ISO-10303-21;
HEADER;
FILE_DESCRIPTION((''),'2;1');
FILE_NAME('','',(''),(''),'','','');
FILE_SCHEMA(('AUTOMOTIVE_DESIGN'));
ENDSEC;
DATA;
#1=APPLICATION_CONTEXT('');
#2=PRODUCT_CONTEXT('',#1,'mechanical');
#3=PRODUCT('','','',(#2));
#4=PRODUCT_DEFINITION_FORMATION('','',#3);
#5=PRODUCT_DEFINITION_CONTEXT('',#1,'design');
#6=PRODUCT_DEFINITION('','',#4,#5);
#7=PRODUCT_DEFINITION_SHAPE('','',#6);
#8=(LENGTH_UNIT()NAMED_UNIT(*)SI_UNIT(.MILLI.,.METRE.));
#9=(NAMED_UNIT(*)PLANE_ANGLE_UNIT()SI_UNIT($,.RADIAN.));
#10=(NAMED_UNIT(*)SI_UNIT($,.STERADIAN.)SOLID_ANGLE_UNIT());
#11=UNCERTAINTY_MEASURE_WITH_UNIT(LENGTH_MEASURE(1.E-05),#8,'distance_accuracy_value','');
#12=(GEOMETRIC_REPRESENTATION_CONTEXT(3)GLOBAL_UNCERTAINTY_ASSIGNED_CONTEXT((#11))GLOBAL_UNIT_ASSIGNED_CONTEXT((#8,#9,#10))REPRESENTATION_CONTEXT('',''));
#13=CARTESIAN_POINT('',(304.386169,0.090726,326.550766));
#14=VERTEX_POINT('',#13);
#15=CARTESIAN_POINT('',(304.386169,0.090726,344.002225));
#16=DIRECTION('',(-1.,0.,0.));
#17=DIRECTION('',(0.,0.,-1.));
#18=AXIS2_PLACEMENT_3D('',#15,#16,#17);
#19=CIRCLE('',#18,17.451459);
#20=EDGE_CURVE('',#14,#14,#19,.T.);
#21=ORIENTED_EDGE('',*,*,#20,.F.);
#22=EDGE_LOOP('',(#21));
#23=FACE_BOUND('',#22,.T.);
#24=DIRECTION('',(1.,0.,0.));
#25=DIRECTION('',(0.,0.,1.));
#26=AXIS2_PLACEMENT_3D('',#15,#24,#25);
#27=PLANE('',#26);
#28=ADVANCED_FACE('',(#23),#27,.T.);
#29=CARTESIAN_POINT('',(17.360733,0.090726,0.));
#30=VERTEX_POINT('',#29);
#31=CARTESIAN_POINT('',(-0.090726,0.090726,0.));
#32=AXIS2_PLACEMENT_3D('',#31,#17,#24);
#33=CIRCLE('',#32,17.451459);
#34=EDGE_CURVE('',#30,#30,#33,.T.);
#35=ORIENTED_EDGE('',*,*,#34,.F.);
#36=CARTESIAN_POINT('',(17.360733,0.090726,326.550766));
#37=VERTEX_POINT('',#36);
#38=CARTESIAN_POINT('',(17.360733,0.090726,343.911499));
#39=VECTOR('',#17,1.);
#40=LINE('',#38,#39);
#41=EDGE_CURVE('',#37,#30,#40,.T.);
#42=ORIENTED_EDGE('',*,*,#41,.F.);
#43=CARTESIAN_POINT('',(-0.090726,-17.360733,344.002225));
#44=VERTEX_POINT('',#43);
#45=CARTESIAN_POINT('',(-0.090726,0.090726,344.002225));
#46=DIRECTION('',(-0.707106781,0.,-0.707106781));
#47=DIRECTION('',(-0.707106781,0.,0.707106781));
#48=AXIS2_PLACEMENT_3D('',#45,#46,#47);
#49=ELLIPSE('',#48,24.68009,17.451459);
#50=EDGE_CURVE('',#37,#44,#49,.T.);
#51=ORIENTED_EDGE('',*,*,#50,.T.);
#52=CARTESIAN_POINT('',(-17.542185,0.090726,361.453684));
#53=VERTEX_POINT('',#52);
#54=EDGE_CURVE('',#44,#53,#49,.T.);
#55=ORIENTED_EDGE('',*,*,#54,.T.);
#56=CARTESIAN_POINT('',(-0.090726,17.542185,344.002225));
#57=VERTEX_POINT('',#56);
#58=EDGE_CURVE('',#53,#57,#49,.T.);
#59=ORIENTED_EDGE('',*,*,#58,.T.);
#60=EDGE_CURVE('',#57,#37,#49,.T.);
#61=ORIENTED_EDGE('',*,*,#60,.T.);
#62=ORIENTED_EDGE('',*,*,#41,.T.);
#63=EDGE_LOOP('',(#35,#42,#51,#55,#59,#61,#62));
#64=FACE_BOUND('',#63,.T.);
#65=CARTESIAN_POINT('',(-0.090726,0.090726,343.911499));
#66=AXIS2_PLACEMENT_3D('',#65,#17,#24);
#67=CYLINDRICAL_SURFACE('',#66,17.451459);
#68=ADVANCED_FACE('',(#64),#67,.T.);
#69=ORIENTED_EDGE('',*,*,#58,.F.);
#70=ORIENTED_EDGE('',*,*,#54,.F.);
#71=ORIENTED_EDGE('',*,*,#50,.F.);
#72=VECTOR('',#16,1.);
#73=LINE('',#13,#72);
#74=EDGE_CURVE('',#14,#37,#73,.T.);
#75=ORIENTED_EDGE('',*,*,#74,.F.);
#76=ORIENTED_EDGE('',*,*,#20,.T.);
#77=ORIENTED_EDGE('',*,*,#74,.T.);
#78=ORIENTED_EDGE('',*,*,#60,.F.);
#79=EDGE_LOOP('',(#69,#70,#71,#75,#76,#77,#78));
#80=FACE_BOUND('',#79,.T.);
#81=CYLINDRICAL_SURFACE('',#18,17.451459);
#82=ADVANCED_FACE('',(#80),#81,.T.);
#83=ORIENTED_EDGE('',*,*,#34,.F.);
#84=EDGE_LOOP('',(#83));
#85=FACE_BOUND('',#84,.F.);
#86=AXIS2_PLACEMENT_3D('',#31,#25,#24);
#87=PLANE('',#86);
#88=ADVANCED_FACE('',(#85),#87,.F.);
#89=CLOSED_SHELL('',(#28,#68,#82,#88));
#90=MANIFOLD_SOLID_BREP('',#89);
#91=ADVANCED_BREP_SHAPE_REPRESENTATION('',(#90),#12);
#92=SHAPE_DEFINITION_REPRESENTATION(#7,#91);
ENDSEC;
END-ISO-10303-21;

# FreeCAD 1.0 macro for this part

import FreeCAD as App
import Part
import Sketcher
from FreeCAD import Vector

doc = App.newDocument("Part")
body = doc.addObject("PartDesign::Body", "Body")

sketch1 = body.newObject("Sketcher::SketchObject", "Sketch")
sketch1.AttachmentSupport = (doc.getObject("XY_Plane"), [""])
sketch1.MapMode = "FlatFace"
sketch1.addGeometry(Part.Circle(Vector(0, 0, 0), Vector(0, 0, 1), 17), False)
sketch1.addConstraint(Sketcher.Constraint("Diameter", 0, 34.902918))
sketch1.addConstraint(Sketcher.Constraint("DistanceX", 0, 3, -1, 1, 0.090726))
sketch1.addConstraint(Sketcher.Constraint("DistanceY", -1, 1, 0, 3, 0.090726))

sketch2 = body.newObject("Sketcher::SketchObject", "Sketch001")
sketch2.AttachmentSupport = (doc.getObject("XZ_Plane"), [""])
sketch2.MapMode = "FlatFace"
sketch2.addGeometry(Part.LineSegment(Vector(304, 344, 0), Vector(0, 344, 0)), False)
sketch2.addGeometry(Part.LineSegment(Vector(0, 344, 0), Vector(0, 0, 0)), False)
sketch2.addConstraint(Sketcher.Constraint("Coincident", 0, 2, 1, 1))
sketch2.addConstraint(Sketcher.Constraint("Horizontal", 0))
sketch2.addConstraint(Sketcher.Constraint("Vertical", 1))
sketch2.addConstraint(Sketcher.Constraint("Coincident", 1, 2, -1, 1))
sketch2.addConstraint(Sketcher.Constraint("DistanceY", 1, 2, 1, 1, 343.911499))
sketch2.addConstraint(Sketcher.Constraint("DistanceX", 0, 2, 0, 1, 304.386169))
doc.recompute()

additivepipe = body.newObject("PartDesign::AdditivePipe", "AdditivePipe")
additivepipe.Profile = sketch1
additivepipe.Spine = (sketch2, ["Edge1", "Edge2"])
additivepipe.Transition = "Right corner"

doc.recompute()
